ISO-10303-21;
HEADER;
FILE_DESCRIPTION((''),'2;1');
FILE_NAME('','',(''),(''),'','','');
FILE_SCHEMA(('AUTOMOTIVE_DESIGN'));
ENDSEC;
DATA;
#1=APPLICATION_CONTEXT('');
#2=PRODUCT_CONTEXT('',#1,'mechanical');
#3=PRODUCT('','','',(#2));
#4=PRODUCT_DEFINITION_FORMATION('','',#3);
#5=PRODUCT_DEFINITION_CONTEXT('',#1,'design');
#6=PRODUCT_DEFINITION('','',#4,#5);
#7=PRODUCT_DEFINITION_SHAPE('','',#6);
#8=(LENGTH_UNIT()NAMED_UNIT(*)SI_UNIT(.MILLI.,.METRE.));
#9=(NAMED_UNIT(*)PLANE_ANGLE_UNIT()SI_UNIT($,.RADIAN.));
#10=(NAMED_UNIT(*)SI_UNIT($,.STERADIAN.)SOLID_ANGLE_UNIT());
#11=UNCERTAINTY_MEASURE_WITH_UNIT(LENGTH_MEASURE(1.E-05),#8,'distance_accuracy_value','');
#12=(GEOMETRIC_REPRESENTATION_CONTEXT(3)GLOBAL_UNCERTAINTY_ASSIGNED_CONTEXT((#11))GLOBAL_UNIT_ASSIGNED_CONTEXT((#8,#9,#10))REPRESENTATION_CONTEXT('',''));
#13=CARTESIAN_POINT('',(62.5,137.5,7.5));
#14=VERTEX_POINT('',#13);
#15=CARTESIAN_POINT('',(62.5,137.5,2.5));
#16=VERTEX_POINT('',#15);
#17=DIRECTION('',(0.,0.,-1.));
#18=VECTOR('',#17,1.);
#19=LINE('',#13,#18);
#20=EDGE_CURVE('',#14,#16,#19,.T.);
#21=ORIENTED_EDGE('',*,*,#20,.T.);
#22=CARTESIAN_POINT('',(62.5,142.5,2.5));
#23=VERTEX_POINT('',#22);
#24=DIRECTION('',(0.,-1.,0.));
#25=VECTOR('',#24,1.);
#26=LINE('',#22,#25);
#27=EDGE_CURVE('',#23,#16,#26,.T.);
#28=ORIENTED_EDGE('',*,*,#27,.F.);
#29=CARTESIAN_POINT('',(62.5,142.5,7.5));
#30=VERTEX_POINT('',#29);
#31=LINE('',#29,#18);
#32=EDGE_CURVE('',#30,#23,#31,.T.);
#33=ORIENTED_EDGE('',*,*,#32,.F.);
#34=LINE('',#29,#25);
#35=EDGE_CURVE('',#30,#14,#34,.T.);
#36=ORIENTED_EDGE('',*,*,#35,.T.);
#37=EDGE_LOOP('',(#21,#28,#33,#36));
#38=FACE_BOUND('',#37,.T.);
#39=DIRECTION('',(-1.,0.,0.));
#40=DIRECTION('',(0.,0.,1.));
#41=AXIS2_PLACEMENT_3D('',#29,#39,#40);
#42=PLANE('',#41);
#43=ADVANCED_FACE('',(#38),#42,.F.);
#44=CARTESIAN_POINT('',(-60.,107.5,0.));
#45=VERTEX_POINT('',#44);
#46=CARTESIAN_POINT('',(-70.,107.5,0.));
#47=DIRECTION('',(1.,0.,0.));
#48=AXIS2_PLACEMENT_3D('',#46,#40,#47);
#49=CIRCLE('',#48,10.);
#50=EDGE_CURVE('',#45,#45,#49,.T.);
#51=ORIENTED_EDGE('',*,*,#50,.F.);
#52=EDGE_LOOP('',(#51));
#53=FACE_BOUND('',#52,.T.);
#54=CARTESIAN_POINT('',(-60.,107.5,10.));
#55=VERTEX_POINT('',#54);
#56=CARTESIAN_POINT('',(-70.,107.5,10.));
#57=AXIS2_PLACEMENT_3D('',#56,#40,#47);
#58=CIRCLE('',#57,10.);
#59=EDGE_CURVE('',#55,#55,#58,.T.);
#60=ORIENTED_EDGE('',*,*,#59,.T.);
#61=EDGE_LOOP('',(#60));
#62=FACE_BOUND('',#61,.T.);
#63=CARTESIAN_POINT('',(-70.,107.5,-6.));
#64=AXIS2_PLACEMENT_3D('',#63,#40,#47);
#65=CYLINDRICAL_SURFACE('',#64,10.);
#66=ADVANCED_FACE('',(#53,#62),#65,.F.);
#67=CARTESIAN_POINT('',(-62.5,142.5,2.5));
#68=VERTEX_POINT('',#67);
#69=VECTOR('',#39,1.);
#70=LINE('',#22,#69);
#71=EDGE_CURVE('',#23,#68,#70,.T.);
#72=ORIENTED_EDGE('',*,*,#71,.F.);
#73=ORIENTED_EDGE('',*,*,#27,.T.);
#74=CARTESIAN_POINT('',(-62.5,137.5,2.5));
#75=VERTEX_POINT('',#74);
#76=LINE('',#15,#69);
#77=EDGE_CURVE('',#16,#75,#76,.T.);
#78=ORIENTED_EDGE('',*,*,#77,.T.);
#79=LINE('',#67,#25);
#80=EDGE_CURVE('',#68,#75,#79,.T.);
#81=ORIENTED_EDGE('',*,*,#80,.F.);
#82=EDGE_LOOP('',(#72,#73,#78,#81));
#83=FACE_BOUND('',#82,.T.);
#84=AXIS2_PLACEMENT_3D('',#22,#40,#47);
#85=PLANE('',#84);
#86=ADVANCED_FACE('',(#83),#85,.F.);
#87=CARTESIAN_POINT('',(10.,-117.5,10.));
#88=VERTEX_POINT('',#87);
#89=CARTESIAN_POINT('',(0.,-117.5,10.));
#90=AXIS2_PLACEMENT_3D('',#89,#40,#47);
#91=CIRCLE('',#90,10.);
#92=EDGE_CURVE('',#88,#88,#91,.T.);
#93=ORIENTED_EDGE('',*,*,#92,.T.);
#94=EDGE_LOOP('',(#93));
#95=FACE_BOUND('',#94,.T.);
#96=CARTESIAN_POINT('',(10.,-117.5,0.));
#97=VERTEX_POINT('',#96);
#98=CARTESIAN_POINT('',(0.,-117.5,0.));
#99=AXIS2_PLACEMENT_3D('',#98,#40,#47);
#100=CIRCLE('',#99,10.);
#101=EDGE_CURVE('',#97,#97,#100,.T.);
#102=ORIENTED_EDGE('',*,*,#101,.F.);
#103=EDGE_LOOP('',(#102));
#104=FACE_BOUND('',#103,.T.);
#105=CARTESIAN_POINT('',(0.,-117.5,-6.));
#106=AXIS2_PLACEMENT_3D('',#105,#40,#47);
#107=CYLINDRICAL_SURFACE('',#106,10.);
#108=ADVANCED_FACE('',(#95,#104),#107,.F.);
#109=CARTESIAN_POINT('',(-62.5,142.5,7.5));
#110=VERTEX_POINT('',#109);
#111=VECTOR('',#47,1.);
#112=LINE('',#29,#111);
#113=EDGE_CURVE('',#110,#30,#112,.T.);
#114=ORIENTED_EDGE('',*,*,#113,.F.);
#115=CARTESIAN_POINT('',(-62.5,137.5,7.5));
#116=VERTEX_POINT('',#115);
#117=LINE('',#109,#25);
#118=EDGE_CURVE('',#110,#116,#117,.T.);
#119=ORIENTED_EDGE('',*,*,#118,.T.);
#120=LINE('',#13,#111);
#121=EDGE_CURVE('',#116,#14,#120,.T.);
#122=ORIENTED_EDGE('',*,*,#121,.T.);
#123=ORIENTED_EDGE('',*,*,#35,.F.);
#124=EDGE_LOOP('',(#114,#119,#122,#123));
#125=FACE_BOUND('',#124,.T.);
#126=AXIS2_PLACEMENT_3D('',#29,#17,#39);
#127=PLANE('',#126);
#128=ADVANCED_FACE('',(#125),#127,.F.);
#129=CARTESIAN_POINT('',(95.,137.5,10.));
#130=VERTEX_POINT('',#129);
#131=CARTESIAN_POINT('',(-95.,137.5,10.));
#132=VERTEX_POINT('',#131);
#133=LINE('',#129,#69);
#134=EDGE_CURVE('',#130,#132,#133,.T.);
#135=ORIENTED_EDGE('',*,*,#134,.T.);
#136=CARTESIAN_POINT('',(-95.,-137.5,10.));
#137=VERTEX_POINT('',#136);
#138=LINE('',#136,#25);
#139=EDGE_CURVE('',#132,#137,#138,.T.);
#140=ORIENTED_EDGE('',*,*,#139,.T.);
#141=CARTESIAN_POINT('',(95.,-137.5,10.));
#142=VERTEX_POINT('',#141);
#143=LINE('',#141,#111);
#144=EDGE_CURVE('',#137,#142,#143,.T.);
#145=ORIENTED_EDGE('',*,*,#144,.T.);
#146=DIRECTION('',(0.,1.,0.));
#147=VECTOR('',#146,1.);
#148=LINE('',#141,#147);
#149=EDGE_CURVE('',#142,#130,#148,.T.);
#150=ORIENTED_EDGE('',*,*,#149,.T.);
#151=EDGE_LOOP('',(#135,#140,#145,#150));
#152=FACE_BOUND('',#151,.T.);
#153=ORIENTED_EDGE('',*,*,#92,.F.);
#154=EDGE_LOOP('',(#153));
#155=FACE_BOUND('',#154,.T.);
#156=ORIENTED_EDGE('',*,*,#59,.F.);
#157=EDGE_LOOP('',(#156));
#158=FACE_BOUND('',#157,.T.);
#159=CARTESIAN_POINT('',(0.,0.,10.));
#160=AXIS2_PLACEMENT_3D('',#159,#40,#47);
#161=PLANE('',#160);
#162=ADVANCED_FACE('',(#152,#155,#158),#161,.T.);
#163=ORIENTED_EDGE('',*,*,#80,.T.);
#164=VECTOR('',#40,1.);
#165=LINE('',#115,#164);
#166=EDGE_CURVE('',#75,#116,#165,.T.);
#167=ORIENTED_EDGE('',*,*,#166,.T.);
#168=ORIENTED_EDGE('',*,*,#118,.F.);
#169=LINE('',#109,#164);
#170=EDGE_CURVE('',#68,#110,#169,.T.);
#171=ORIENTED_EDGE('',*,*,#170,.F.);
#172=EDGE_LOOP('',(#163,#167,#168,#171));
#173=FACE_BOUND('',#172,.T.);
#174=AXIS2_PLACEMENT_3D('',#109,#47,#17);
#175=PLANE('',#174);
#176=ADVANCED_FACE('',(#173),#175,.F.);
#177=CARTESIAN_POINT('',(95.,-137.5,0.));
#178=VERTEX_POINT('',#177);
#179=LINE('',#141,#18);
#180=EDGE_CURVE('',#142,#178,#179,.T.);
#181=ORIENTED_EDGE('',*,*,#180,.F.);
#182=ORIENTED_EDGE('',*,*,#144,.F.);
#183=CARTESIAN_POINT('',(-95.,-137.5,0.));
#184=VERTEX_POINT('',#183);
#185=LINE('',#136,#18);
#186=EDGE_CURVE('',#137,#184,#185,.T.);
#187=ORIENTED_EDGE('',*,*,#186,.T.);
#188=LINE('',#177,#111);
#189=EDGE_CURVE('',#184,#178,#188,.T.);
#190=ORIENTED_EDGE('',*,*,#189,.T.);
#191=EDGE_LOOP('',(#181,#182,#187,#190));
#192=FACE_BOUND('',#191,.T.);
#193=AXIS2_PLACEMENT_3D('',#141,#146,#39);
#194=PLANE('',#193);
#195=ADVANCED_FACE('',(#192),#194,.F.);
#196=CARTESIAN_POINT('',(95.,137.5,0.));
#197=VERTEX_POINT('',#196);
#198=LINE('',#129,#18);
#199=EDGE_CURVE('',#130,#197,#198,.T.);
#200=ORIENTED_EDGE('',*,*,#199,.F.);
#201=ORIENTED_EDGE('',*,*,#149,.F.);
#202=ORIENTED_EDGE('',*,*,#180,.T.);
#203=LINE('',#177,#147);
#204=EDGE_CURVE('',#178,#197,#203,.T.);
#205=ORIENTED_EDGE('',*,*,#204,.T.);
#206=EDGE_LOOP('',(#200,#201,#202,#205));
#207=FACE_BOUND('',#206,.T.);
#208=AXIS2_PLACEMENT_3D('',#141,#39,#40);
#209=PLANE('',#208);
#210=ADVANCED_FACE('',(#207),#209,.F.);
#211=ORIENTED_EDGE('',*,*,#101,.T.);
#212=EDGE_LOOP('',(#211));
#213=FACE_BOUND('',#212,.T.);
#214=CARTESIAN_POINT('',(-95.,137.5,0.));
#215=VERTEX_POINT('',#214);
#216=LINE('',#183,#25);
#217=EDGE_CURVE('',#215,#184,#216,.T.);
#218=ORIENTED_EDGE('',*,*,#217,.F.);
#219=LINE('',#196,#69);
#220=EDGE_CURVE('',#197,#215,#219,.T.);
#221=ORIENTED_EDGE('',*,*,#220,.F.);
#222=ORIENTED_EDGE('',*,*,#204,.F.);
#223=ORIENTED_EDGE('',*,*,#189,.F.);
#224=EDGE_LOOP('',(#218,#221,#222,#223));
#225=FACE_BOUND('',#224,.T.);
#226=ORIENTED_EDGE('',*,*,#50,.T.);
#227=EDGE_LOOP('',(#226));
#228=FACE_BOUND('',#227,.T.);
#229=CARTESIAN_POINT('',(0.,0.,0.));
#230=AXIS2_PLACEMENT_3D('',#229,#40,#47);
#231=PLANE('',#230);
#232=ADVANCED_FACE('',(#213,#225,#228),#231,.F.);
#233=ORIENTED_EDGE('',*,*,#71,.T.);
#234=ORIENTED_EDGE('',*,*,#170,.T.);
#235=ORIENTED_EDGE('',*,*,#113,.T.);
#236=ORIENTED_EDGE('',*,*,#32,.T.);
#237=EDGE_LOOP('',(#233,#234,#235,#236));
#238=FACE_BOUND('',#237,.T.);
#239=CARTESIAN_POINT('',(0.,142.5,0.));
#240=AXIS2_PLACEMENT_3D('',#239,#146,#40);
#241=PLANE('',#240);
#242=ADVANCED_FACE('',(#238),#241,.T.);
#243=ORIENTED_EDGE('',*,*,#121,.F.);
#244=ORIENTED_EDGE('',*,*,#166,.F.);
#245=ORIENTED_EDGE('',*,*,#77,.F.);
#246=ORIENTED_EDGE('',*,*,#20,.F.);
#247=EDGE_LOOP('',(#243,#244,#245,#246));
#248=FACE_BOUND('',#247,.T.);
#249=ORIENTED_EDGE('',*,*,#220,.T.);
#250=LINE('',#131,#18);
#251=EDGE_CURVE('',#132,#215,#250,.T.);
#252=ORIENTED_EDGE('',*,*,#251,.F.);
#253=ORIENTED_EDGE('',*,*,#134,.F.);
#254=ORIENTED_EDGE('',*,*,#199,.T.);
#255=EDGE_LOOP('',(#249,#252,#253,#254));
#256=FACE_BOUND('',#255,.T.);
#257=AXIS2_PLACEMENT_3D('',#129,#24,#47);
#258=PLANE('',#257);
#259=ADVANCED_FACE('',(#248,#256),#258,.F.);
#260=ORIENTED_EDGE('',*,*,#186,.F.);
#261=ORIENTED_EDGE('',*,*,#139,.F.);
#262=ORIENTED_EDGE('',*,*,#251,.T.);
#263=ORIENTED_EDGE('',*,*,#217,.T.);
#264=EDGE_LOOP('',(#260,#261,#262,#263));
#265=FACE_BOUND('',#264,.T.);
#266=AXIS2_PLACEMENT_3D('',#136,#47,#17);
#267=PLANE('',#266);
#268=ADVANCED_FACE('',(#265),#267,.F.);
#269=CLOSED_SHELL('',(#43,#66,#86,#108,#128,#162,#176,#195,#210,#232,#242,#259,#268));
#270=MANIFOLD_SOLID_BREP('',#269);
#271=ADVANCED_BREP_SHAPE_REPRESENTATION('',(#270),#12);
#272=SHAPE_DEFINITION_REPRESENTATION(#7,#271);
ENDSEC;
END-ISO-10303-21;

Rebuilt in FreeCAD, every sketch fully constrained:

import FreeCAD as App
import Part
import Sketcher


def add_polygon(sketch, points):
    """Adds a closed chain of lines whose ends are joined by coincident constraints."""
    first, n = sketch.GeometryCount, len(points)
    for a, b in zip(points, points[1:] + points[:1]):
        sketch.addGeometry(Part.LineSegment(App.Vector(*a, 0), App.Vector(*b, 0)), False)
    for i in range(n):
        sketch.addConstraint(Sketcher.Constraint("Coincident", first + i, 2, first + (i + 1) % n, 1))

doc = App.newDocument("Part")
body = doc.addObject("PartDesign::Body", "Body")

# Sketch on XY plane
sketch1 = doc.addObject("Sketcher::SketchObject", "Sketch")
body.addObject(sketch1)
sketch1.AttachmentSupport = (doc.XY_Plane, [""])
sketch1.MapMode = "FlatFace"
add_polygon(sketch1, [(-95, 138), (-95, -138), (95, -138), (95, 138)])  # lines 0-3
sketch1.addConstraint(Sketcher.Constraint("Vertical", 0))
sketch1.addConstraint(Sketcher.Constraint("Horizontal", 1))
sketch1.addConstraint(Sketcher.Constraint("Vertical", 2))
sketch1.addConstraint(Sketcher.Constraint("Horizontal", 3))
sketch1.addConstraint(Sketcher.Constraint("Symmetric", 0, 2, 2, 2, -1, 1))
sketch1.addConstraint(Sketcher.Constraint("DistanceX", 1, 1, 1, 2, 190.0))
sketch1.addConstraint(Sketcher.Constraint("DistanceY", 0, 2, 0, 1, 275.0))
pad1 = doc.addObject("PartDesign::Pad", "Pad")
body.addObject(pad1)
pad1.Profile = sketch1
pad1.Length = 10

# Sketch on XZ plane
sketch2 = doc.addObject("Sketcher::SketchObject", "Sketch001")
body.addObject(sketch2)
sketch2.AttachmentSupport = (doc.XZ_Plane, [""])
sketch2.MapMode = "FlatFace"
sketch2.AttachmentOffset = App.Placement(App.Vector(0, 0, -137.5), App.Rotation())
add_polygon(sketch2, [(-62, 2), (-62, 8), (62, 8), (62, 2)])  # lines 0-3
sketch2.addConstraint(Sketcher.Constraint("Vertical", 0))
sketch2.addConstraint(Sketcher.Constraint("Horizontal", 1))
sketch2.addConstraint(Sketcher.Constraint("Vertical", 2))
sketch2.addConstraint(Sketcher.Constraint("Horizontal", 3))
sketch2.addConstraint(Sketcher.Constraint("DistanceX", 1, 1, 1, 2, 125.0))
sketch2.addConstraint(Sketcher.Constraint("DistanceY", 0, 1, 0, 2, 5.0))
sketch2.addConstraint(Sketcher.Constraint("DistanceX", 0, 2, -1, 1, 62.5))
sketch2.addConstraint(Sketcher.Constraint("DistanceY", -1, 1, 0, 2, 7.5))
pad2 = doc.addObject("PartDesign::Pad", "Pad001")
body.addObject(pad2)
pad2.Profile = sketch2
pad2.Length = 5
pad2.Reversed = True

# Sketch on XY plane
sketch3 = doc.addObject("Sketcher::SketchObject", "Sketch002")
body.addObject(sketch3)
sketch3.AttachmentSupport = (doc.XY_Plane, [""])
sketch3.MapMode = "FlatFace"
sketch3.AttachmentOffset = App.Placement(App.Vector(0, 0, 10), App.Rotation())
sketch3.addGeometry(Part.Circle(App.Vector(0, -118, 0), App.Vector(0, 0, 1), 10), False)
sketch3.addGeometry(Part.Circle(App.Vector(-70, 108, 0), App.Vector(0, 0, 1), 10), False)
sketch3.addConstraint(Sketcher.Constraint("Equal", 0, 1))
sketch3.addConstraint(Sketcher.Constraint("PointOnObject", 0, 3, -2))
sketch3.addConstraint(Sketcher.Constraint("Diameter", 0, 20.0))
sketch3.addConstraint(Sketcher.Constraint("DistanceX", 1, 3, -1, 1, 70.0))
sketch3.addConstraint(Sketcher.Constraint("DistanceY", 0, 3, 1, 3, 225.0))
sketch3.addConstraint(Sketcher.Constraint("DistanceY", 0, 3, -1, 1, 117.5))
pocket1 = doc.addObject("PartDesign::Pocket", "Pocket")
body.addObject(pocket1)
pocket1.Profile = sketch3
pocket1.Length = 16

doc.recompute()
